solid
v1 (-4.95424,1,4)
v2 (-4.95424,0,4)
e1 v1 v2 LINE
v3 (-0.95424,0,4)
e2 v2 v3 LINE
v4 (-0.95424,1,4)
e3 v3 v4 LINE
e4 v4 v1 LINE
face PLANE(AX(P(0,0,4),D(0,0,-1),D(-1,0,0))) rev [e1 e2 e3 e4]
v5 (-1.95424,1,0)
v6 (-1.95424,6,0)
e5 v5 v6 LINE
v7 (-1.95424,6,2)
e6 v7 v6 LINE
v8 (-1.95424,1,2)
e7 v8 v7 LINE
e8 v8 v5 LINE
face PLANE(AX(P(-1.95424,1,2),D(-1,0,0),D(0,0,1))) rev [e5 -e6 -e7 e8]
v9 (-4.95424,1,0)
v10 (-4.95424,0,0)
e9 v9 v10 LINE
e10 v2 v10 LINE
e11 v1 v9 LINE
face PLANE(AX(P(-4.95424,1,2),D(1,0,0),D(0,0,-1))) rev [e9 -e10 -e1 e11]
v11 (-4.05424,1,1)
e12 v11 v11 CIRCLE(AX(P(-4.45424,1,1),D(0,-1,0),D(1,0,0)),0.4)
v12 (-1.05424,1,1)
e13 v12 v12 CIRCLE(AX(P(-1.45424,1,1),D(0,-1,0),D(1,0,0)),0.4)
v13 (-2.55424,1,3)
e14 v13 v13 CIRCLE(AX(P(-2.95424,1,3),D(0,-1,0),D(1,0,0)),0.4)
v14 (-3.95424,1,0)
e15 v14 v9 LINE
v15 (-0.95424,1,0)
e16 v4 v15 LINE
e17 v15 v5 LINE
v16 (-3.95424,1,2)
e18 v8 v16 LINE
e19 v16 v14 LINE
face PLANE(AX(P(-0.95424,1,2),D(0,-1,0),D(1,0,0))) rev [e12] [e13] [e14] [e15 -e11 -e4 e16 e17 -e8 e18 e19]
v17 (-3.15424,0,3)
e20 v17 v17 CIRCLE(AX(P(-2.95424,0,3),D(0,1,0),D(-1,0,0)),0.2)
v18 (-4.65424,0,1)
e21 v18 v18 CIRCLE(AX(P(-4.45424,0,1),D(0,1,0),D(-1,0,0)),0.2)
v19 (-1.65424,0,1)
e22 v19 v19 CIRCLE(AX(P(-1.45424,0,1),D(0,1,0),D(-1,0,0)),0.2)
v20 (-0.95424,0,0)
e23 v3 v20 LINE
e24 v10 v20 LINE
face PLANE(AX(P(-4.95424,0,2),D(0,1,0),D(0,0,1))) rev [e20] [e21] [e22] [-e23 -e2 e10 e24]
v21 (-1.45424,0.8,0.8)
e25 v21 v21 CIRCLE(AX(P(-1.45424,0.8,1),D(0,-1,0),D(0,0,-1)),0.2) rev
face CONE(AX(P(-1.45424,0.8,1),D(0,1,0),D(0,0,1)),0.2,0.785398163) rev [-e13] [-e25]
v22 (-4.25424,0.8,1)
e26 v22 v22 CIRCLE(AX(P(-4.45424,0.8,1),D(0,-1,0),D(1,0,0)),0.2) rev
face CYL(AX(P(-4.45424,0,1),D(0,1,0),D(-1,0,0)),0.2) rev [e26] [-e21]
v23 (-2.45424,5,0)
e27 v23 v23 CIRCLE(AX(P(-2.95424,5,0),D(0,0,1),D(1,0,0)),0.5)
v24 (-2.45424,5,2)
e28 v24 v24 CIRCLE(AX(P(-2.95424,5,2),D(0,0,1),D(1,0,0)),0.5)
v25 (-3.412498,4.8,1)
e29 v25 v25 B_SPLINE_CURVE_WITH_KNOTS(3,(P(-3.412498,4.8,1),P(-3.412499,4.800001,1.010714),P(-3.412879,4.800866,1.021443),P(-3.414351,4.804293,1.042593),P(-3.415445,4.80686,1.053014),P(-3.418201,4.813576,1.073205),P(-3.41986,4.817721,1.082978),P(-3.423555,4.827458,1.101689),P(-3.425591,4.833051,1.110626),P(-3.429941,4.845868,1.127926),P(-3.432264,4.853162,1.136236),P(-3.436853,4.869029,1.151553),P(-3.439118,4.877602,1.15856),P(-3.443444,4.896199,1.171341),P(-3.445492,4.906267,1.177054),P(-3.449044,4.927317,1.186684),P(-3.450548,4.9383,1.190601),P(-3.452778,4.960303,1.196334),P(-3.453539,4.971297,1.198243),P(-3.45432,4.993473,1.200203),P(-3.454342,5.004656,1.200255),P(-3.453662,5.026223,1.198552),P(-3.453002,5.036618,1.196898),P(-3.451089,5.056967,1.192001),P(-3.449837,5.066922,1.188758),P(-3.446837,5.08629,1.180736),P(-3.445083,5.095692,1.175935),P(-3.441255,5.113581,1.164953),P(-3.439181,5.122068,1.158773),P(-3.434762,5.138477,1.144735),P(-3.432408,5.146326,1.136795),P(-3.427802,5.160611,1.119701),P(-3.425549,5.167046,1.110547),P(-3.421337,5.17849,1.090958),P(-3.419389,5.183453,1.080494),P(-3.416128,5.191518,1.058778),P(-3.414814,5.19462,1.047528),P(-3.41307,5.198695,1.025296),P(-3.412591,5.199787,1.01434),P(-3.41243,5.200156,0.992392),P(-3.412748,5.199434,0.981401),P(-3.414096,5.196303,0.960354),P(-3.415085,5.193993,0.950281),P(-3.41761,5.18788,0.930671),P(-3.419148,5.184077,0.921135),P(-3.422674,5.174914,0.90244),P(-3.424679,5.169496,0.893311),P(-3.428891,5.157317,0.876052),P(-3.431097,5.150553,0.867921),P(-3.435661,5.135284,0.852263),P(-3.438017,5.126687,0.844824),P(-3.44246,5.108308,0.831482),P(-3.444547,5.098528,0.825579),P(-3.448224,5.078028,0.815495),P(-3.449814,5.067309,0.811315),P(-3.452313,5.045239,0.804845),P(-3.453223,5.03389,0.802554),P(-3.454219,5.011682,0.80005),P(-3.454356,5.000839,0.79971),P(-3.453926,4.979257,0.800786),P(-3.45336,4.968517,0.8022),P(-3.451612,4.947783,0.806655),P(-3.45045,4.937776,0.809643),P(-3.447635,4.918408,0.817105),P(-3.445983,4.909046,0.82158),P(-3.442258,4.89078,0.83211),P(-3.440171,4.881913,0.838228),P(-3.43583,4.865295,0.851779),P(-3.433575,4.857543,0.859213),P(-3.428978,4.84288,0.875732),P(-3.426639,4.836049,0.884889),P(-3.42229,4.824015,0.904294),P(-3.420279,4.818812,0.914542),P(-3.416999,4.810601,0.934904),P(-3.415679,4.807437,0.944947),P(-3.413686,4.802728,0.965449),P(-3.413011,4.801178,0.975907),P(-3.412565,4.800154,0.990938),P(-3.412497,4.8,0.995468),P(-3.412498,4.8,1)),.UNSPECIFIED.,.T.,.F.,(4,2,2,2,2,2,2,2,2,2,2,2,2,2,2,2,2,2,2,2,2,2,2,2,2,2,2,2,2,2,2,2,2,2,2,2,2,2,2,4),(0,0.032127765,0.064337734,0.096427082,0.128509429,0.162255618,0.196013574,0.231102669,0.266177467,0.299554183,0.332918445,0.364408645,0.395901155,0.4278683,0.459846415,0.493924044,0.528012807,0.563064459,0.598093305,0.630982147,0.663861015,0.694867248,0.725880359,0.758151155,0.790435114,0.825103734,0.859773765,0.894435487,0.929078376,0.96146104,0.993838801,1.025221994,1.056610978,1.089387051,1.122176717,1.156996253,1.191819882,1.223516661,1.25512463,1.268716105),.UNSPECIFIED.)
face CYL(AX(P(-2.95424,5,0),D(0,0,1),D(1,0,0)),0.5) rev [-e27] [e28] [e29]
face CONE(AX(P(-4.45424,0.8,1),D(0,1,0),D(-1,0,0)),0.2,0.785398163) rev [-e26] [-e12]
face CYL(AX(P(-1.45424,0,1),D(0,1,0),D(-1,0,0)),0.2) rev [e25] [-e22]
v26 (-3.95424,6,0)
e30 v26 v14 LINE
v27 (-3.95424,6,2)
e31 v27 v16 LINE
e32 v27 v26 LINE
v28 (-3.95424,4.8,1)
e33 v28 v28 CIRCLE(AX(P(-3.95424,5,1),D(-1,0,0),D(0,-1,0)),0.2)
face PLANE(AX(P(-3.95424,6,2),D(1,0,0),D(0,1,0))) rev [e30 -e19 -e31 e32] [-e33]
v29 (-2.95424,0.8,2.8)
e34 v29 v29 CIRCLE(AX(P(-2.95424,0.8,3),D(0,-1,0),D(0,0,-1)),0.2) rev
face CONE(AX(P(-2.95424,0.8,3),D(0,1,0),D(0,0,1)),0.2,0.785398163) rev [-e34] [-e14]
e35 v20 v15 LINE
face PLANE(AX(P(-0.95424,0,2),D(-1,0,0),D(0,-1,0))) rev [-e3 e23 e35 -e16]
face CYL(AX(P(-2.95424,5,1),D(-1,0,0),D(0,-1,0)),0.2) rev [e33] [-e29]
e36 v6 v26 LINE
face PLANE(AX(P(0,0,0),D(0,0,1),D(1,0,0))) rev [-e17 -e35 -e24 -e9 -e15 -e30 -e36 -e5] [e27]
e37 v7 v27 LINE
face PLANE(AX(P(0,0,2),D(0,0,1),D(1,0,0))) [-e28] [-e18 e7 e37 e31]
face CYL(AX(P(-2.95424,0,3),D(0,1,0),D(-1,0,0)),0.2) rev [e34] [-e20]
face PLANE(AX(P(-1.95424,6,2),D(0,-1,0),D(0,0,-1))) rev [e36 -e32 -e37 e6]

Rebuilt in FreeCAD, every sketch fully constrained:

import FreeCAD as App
import Part
import Sketcher


def edges_at(feature, points):
    """Names of the edges that pass closest to the given points."""
    edges = feature.Shape.Edges
    near = lambda p: min(range(len(edges)), key=lambda i: edges[i].distToShape(Part.Vertex(*p))[0])
    return sorted({f"Edge{near(p) + 1}" for p in points})


def add_polygon(sketch, points):
    """Adds a closed chain of lines whose ends are joined by coincident constraints."""
    first, n = sketch.GeometryCount, len(points)
    for a, b in zip(points, points[1:] + points[:1]):
        sketch.addGeometry(Part.LineSegment(App.Vector(*a, 0), App.Vector(*b, 0)), False)
    for i in range(n):
        sketch.addConstraint(Sketcher.Constraint("Coincident", first + i, 2, first + (i + 1) % n, 1))

doc = App.newDocument("Part")
body = doc.addObject("PartDesign::Body", "Body")

# Sketch on XY plane
sketch1 = doc.addObject("Sketcher::SketchObject", "Sketch")
body.addObject(sketch1)
sketch1.AttachmentSupport = (doc.XY_Plane, [""])
sketch1.MapMode = "FlatFace"
add_polygon(sketch1, [(-4.95424, 0), (-0.95424, 0), (-0.95424, 1), (-1.95424, 1), (-1.95424, 6), (-3.95424, 6), (-3.95424, 1), (-4.95424, 1)])  # lines 0-7
sketch1.addConstraint([
    Sketcher.Constraint("Horizontal", 0),
    Sketcher.Constraint("Vertical", 1),
    Sketcher.Constraint("Horizontal", 2),
    Sketcher.Constraint("Vertical", 3),
    Sketcher.Constraint("Horizontal", 4),
    Sketcher.Constraint("Vertical", 5),
    Sketcher.Constraint("Horizontal", 6),
    Sketcher.Constraint("Vertical", 7),
    Sketcher.Constraint("PointOnObject", 0, 2, -1),
    Sketcher.Constraint("Horizontal", 2, 2, 5, 2),
    Sketcher.Constraint("Equal", 2, 6),
    Sketcher.Constraint("Equal", 6, 1),
    Sketcher.Constraint("DistanceX", 0, 1, 0, 2, 4.0),
    Sketcher.Constraint("DistanceX", 2, 2, 2, 1, 1.0),
    Sketcher.Constraint("DistanceY", 3, 1, 3, 2, 5.0),
    Sketcher.Constraint("DistanceX", 0, 2, -1, 1, 0.95424),
])
pad1 = doc.addObject("PartDesign::Pad", "Pad")
body.addObject(pad1)
pad1.Profile = sketch1
pad1.Length = 2

# Sketch on XY plane
sketch2 = doc.addObject("Sketcher::SketchObject", "Sketch001")
body.addObject(sketch2)
sketch2.AttachmentSupport = (doc.XY_Plane, [""])
sketch2.MapMode = "FlatFace"
sketch2.AttachmentOffset = App.Placement(App.Vector(0, 0, 2), App.Rotation())
add_polygon(sketch2, [(-0.95424, 1), (-4.95424, 1), (-4.95424, 0), (-0.95424, 0)])  # lines 0-3
sketch2.addConstraint([
    Sketcher.Constraint("Horizontal", 0),
    Sketcher.Constraint("Vertical", 1),
    Sketcher.Constraint("Horizontal", 2),
    Sketcher.Constraint("Vertical", 3),
    Sketcher.Constraint("PointOnObject", 1, 2, -1),
    Sketcher.Constraint("DistanceX", 0, 2, 0, 1, 4.0),
    Sketcher.Constraint("DistanceY", 1, 2, 1, 1, 1.0),
    Sketcher.Constraint("DistanceX", 0, 2, -1, 1, 4.95424),
])
pad2 = doc.addObject("PartDesign::Pad", "Pad001")
body.addObject(pad2)
pad2.Profile = sketch2
pad2.Length = 2

# Sketch on XY plane
sketch3 = doc.addObject("Sketcher::SketchObject", "Sketch002")
body.addObject(sketch3)
sketch3.AttachmentSupport = (doc.XY_Plane, [""])
sketch3.MapMode = "FlatFace"
sketch3.AttachmentOffset = App.Placement(App.Vector(0, 0, 2), App.Rotation())
sketch3.addGeometry(Part.Circle(App.Vector(-2.95424, 5, 0), App.Vector(0, 0, 1), 0.5), False)
sketch3.addConstraint([
    Sketcher.Constraint("Diameter", 0, 1.0),
    Sketcher.Constraint("DistanceY", -1, 1, 0, 3, 5.0),
    Sketcher.Constraint("DistanceX", 0, 3, -1, 1, 2.95424),
])
pocket1 = doc.addObject("PartDesign::Pocket", "Pocket")
body.addObject(pocket1)
pocket1.Profile = sketch3
pocket1.Length = 2

# Sketch on YZ plane
sketch4 = doc.addObject("Sketcher::SketchObject", "Sketch003")
body.addObject(sketch4)
sketch4.AttachmentSupport = (doc.YZ_Plane, [""])
sketch4.MapMode = "FlatFace"
sketch4.AttachmentOffset = App.Placement(App.Vector(0, 0, -3.95424), App.Rotation())
sketch4.addGeometry(Part.Circle(App.Vector(5, 1, 0), App.Vector(0, 0, 1), 0.2), False)
sketch4.addConstraint([
    Sketcher.Constraint("Diameter", 0, 0.4),
    Sketcher.Constraint("DistanceX", -1, 1, 0, 3, 5.0),
    Sketcher.Constraint("DistanceY", -1, 1, 0, 3, 1.0),
])
pocket2 = doc.addObject("PartDesign::Pocket", "Pocket001")
body.addObject(pocket2)
pocket2.Profile = sketch4
pocket2.Length = 1
pocket2.Reversed = True

# Sketch on XZ plane
sketch5 = doc.addObject("Sketcher::SketchObject", "Sketch004")
body.addObject(sketch5)
sketch5.AttachmentSupport = (doc.XZ_Plane, [""])
sketch5.MapMode = "FlatFace"
sketch5.AttachmentOffset = App.Placement(App.Vector(0, 0, -1), App.Rotation())
sketch5.addGeometry([
    Part.Circle(App.Vector(-4.45424, 1, 0), App.Vector(0, 0, 1), 0.2),
    Part.Circle(App.Vector(-1.45424, 1, 0), App.Vector(0, 0, 1), 0.2),
    Part.Circle(App.Vector(-2.95424, 3, 0), App.Vector(0, 0, 1), 0.2),
], False)
sketch5.addConstraint([
    Sketcher.Constraint("Equal", 0, 1),
    Sketcher.Constraint("Equal", 1, 2),
    Sketcher.Constraint("Horizontal", 0, 3, 1, 3),
    Sketcher.Constraint("Diameter", 0, 0.4),
    Sketcher.Constraint("DistanceY", -1, 1, 0, 3, 1.0),
    Sketcher.Constraint("DistanceY", -1, 1, 2, 3, 3.0),
    Sketcher.Constraint("DistanceX", 0, 3, 1, 3, 3.0),
    Sketcher.Constraint("DistanceX", 2, 3, 1, 3, 1.5),
    Sketcher.Constraint("DistanceX", 0, 3, -1, 1, 4.45424),
])
pocket3 = doc.addObject("PartDesign::Pocket", "Pocket002")
body.addObject(pocket3)
pocket3.Profile = sketch5
pocket3.Length = 1
pocket3.Reversed = True
doc.recompute()

chamfer = doc.addObject("PartDesign::Chamfer", "Chamfer")
body.addObject(chamfer)
chamfer.Base = (pocket3, edges_at(pocket3, [(-3.154, 1, 3)]))
chamfer.Size = 0.2
doc.recompute()

chamfer2 = doc.addObject("PartDesign::Chamfer", "Chamfer001")
body.addObject(chamfer2)
chamfer2.Base = (chamfer, edges_at(chamfer, [(-1.654, 1, 1)]))
chamfer2.Size = 0.2
doc.recompute()

chamfer3 = doc.addObject("PartDesign::Chamfer", "Chamfer002")
body.addObject(chamfer3)
chamfer3.Base = (chamfer2, edges_at(chamfer2, [(-4.654, 1, 1)]))
chamfer3.Size = 0.2

doc.recompute()
